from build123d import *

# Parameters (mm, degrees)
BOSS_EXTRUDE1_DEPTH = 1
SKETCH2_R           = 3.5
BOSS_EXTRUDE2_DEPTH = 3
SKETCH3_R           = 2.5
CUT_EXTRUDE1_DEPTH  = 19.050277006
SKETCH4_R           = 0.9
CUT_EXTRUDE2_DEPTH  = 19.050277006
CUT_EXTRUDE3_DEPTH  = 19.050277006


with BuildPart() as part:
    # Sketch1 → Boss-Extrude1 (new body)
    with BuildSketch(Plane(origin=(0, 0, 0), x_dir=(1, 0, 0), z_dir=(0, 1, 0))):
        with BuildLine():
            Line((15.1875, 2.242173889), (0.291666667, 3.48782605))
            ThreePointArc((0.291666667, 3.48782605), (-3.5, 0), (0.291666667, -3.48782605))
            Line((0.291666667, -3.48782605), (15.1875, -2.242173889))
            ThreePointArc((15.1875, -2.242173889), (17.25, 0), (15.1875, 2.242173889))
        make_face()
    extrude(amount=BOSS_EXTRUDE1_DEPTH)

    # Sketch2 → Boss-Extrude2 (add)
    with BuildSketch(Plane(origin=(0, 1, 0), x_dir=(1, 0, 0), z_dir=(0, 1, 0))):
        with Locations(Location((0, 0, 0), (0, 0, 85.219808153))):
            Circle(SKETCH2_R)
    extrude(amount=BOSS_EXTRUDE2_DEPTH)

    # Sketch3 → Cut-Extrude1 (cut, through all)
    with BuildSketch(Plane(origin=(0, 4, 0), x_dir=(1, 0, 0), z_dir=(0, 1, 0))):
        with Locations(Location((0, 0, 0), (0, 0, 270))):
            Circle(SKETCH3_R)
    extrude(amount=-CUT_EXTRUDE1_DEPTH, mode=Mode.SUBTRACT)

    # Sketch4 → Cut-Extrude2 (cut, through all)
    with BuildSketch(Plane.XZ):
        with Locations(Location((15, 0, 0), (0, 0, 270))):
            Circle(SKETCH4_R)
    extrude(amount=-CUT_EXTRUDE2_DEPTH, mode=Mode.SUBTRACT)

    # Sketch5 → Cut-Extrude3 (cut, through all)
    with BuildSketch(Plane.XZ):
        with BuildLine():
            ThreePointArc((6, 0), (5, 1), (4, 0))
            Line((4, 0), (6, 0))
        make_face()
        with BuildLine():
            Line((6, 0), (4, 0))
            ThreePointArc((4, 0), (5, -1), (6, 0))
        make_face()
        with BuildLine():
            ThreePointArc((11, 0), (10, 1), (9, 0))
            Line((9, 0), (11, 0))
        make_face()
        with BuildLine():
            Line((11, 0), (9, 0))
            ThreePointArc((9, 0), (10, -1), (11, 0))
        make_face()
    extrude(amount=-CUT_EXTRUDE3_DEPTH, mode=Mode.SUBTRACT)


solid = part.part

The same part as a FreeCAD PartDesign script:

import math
import FreeCAD as App
import Part
import Sketcher
Q = App.Units.Quantity

doc = App.newDocument("Part")
params = doc.addObject("Spreadsheet::Sheet", "Params")
for row, (alias, value) in enumerate([
    ("sketch1_radius", "3.5 mm"),
    ("sketch1_radius2", "2.25 mm"),
    ("pad1_length", "1 mm"),
    ("sketch2_diameter", "7 mm"),
    ("pad2_length", "3 mm"),
    ("sketch3_diameter", "5 mm"),
    ("sketch4_diameter", "1.8 mm"),
    ("sketch5_diameter", "2 mm"),
], start=1):
    params.set(f"A{row}", alias)
    params.set(f"B{row}", "=" + value)
    params.setAlias(f"B{row}", alias)

body = doc.addObject("PartDesign::Body", "Body")

sketch1 = body.newObject("Sketcher::SketchObject", "Sketch")
sketch1.AttachmentSupport = (doc.getObject("XZ_Plane"), [""])
sketch1.MapMode = "FlatFace"
sketch1.addGeometry(Part.LineSegment(App.Vector(15.2, -2.2, 0), App.Vector(0.3, -3.5, 0)), False)
sketch1.addGeometry(Part.ArcOfCircle(Part.Circle(App.Vector(0, 0, 0), App.Vector(0, 0, 1), 3.5), math.radians(85), math.radians(275)), False)
sketch1.addGeometry(Part.LineSegment(App.Vector(0.3, 3.5, 0), App.Vector(15.2, 2.2, 0)), False)
sketch1.addGeometry(Part.ArcOfCircle(Part.Circle(App.Vector(15, 0, 0), App.Vector(0, 0, 1), 2.2), math.radians(-85), math.radians(85)), False)
sketch1.addConstraint(Sketcher.Constraint("Tangent", 0, 2, 1, 2))
sketch1.addConstraint(Sketcher.Constraint("Tangent", 1, 1, 2, 1))
sketch1.addConstraint(Sketcher.Constraint("Tangent", 2, 2, 3, 2))
sketch1.addConstraint(Sketcher.Constraint("Tangent", 3, 1, 0, 1))
sketch1.addConstraint(Sketcher.Constraint("Coincident", 1, 3, -1, 1))
sketch1.addConstraint(Sketcher.Constraint("PointOnObject", 3, 3, -1))
sketch1.addConstraint(Sketcher.Constraint("Radius", 1, Q("3.5 mm")))
sketch1.addConstraint(Sketcher.Constraint("Radius", 3, Q("2.25 mm")))
sketch1.addConstraint(Sketcher.Constraint("DistanceX", -1, 1, 3, 3, Q("15 mm")))
sketch1.setExpression("Constraints[6]", "Params.sketch1_radius")
sketch1.setExpression("Constraints[7]", "Params.sketch1_radius2")
pad1 = body.newObject("PartDesign::Pad", "Pad")
pad1.Profile = sketch1
pad1.setExpression("Length", "Params.pad1_length")
pad1.Reversed = True

sketch2 = body.newObject("Sketcher::SketchObject", "Sketch001")
sketch2.AttachmentSupport = (doc.getObject("XZ_Plane"), [""])
sketch2.MapMode = "FlatFace"
sketch2.AttachmentOffset = App.Placement(App.Vector(0, 0, -1), App.Rotation())
sketch2.addGeometry(Part.Circle(App.Vector(0, 0, 0), App.Vector(0, 0, 1), 3.5), False)
sketch2.addConstraint(Sketcher.Constraint("Coincident", 0, 3, -1, 1))
sketch2.addConstraint(Sketcher.Constraint("Diameter", 0, Q("7 mm")))
sketch2.setExpression("Constraints[1]", "Params.sketch2_diameter")
pad2 = body.newObject("PartDesign::Pad", "Pad001")
pad2.Profile = sketch2
pad2.setExpression("Length", "Params.pad2_length")
pad2.Reversed = True

sketch3 = body.newObject("Sketcher::SketchObject", "Sketch002")
sketch3.AttachmentSupport = (doc.getObject("XZ_Plane"), [""])
sketch3.MapMode = "FlatFace"
sketch3.AttachmentOffset = App.Placement(App.Vector(0, 0, -4), App.Rotation())
sketch3.addGeometry(Part.Circle(App.Vector(0, 0, 0), App.Vector(0, 0, 1), 2.5), False)
sketch3.addConstraint(Sketcher.Constraint("Coincident", 0, 3, -1, 1))
sketch3.addConstraint(Sketcher.Constraint("Diameter", 0, Q("5 mm")))
sketch3.setExpression("Constraints[1]", "Params.sketch3_diameter")
pocket1 = body.newObject("PartDesign::Pocket", "Pocket")
pocket1.Profile = sketch3
pocket1.Type = "ThroughAll"
pocket1.Reversed = True

sketch4 = body.newObject("Sketcher::SketchObject", "Sketch003")
sketch4.AttachmentSupport = (doc.getObject("XZ_Plane"), [""])
sketch4.MapMode = "FlatFace"
sketch4.addGeometry(Part.Circle(App.Vector(15, 0, 0), App.Vector(0, 0, 1), 0.9), False)
sketch4.addConstraint(Sketcher.Constraint("PointOnObject", 0, 3, -1))
sketch4.addConstraint(Sketcher.Constraint("Diameter", 0, Q("1.8 mm")))
sketch4.addConstraint(Sketcher.Constraint("DistanceX", -1, 1, 0, 3, Q("15 mm")))
sketch4.setExpression("Constraints[1]", "Params.sketch4_diameter")
pocket2 = body.newObject("PartDesign::Pocket", "Pocket001")
pocket2.Profile = sketch4
pocket2.Type = "ThroughAll"

sketch5 = body.newObject("Sketcher::SketchObject", "Sketch004")
sketch5.AttachmentSupport = (doc.getObject("XZ_Plane"), [""])
sketch5.MapMode = "FlatFace"
sketch5.addGeometry(Part.Circle(App.Vector(5, 0, 0), App.Vector(0, 0, 1), 1), False)
sketch5.addGeometry(Part.Circle(App.Vector(10, 0, 0), App.Vector(0, 0, 1), 1), False)
sketch5.addConstraint(Sketcher.Constraint("Equal", 0, 1))
sketch5.addConstraint(Sketcher.Constraint("PointOnObject", 0, 3, -1))
sketch5.addConstraint(Sketcher.Constraint("PointOnObject", 1, 3, -1))
sketch5.addConstraint(Sketcher.Constraint("Diameter", 0, Q("2 mm")))
sketch5.addConstraint(Sketcher.Constraint("DistanceX", -1, 1, 0, 3, Q("5 mm")))
sketch5.addConstraint(Sketcher.Constraint("DistanceX", -1, 1, 1, 3, Q("10 mm")))
sketch5.setExpression("Constraints[3]", "Params.sketch5_diameter")
pocket3 = body.newObject("PartDesign::Pocket", "Pocket002")
pocket3.Profile = sketch5
pocket3.Type = "ThroughAll"

doc.recompute()
